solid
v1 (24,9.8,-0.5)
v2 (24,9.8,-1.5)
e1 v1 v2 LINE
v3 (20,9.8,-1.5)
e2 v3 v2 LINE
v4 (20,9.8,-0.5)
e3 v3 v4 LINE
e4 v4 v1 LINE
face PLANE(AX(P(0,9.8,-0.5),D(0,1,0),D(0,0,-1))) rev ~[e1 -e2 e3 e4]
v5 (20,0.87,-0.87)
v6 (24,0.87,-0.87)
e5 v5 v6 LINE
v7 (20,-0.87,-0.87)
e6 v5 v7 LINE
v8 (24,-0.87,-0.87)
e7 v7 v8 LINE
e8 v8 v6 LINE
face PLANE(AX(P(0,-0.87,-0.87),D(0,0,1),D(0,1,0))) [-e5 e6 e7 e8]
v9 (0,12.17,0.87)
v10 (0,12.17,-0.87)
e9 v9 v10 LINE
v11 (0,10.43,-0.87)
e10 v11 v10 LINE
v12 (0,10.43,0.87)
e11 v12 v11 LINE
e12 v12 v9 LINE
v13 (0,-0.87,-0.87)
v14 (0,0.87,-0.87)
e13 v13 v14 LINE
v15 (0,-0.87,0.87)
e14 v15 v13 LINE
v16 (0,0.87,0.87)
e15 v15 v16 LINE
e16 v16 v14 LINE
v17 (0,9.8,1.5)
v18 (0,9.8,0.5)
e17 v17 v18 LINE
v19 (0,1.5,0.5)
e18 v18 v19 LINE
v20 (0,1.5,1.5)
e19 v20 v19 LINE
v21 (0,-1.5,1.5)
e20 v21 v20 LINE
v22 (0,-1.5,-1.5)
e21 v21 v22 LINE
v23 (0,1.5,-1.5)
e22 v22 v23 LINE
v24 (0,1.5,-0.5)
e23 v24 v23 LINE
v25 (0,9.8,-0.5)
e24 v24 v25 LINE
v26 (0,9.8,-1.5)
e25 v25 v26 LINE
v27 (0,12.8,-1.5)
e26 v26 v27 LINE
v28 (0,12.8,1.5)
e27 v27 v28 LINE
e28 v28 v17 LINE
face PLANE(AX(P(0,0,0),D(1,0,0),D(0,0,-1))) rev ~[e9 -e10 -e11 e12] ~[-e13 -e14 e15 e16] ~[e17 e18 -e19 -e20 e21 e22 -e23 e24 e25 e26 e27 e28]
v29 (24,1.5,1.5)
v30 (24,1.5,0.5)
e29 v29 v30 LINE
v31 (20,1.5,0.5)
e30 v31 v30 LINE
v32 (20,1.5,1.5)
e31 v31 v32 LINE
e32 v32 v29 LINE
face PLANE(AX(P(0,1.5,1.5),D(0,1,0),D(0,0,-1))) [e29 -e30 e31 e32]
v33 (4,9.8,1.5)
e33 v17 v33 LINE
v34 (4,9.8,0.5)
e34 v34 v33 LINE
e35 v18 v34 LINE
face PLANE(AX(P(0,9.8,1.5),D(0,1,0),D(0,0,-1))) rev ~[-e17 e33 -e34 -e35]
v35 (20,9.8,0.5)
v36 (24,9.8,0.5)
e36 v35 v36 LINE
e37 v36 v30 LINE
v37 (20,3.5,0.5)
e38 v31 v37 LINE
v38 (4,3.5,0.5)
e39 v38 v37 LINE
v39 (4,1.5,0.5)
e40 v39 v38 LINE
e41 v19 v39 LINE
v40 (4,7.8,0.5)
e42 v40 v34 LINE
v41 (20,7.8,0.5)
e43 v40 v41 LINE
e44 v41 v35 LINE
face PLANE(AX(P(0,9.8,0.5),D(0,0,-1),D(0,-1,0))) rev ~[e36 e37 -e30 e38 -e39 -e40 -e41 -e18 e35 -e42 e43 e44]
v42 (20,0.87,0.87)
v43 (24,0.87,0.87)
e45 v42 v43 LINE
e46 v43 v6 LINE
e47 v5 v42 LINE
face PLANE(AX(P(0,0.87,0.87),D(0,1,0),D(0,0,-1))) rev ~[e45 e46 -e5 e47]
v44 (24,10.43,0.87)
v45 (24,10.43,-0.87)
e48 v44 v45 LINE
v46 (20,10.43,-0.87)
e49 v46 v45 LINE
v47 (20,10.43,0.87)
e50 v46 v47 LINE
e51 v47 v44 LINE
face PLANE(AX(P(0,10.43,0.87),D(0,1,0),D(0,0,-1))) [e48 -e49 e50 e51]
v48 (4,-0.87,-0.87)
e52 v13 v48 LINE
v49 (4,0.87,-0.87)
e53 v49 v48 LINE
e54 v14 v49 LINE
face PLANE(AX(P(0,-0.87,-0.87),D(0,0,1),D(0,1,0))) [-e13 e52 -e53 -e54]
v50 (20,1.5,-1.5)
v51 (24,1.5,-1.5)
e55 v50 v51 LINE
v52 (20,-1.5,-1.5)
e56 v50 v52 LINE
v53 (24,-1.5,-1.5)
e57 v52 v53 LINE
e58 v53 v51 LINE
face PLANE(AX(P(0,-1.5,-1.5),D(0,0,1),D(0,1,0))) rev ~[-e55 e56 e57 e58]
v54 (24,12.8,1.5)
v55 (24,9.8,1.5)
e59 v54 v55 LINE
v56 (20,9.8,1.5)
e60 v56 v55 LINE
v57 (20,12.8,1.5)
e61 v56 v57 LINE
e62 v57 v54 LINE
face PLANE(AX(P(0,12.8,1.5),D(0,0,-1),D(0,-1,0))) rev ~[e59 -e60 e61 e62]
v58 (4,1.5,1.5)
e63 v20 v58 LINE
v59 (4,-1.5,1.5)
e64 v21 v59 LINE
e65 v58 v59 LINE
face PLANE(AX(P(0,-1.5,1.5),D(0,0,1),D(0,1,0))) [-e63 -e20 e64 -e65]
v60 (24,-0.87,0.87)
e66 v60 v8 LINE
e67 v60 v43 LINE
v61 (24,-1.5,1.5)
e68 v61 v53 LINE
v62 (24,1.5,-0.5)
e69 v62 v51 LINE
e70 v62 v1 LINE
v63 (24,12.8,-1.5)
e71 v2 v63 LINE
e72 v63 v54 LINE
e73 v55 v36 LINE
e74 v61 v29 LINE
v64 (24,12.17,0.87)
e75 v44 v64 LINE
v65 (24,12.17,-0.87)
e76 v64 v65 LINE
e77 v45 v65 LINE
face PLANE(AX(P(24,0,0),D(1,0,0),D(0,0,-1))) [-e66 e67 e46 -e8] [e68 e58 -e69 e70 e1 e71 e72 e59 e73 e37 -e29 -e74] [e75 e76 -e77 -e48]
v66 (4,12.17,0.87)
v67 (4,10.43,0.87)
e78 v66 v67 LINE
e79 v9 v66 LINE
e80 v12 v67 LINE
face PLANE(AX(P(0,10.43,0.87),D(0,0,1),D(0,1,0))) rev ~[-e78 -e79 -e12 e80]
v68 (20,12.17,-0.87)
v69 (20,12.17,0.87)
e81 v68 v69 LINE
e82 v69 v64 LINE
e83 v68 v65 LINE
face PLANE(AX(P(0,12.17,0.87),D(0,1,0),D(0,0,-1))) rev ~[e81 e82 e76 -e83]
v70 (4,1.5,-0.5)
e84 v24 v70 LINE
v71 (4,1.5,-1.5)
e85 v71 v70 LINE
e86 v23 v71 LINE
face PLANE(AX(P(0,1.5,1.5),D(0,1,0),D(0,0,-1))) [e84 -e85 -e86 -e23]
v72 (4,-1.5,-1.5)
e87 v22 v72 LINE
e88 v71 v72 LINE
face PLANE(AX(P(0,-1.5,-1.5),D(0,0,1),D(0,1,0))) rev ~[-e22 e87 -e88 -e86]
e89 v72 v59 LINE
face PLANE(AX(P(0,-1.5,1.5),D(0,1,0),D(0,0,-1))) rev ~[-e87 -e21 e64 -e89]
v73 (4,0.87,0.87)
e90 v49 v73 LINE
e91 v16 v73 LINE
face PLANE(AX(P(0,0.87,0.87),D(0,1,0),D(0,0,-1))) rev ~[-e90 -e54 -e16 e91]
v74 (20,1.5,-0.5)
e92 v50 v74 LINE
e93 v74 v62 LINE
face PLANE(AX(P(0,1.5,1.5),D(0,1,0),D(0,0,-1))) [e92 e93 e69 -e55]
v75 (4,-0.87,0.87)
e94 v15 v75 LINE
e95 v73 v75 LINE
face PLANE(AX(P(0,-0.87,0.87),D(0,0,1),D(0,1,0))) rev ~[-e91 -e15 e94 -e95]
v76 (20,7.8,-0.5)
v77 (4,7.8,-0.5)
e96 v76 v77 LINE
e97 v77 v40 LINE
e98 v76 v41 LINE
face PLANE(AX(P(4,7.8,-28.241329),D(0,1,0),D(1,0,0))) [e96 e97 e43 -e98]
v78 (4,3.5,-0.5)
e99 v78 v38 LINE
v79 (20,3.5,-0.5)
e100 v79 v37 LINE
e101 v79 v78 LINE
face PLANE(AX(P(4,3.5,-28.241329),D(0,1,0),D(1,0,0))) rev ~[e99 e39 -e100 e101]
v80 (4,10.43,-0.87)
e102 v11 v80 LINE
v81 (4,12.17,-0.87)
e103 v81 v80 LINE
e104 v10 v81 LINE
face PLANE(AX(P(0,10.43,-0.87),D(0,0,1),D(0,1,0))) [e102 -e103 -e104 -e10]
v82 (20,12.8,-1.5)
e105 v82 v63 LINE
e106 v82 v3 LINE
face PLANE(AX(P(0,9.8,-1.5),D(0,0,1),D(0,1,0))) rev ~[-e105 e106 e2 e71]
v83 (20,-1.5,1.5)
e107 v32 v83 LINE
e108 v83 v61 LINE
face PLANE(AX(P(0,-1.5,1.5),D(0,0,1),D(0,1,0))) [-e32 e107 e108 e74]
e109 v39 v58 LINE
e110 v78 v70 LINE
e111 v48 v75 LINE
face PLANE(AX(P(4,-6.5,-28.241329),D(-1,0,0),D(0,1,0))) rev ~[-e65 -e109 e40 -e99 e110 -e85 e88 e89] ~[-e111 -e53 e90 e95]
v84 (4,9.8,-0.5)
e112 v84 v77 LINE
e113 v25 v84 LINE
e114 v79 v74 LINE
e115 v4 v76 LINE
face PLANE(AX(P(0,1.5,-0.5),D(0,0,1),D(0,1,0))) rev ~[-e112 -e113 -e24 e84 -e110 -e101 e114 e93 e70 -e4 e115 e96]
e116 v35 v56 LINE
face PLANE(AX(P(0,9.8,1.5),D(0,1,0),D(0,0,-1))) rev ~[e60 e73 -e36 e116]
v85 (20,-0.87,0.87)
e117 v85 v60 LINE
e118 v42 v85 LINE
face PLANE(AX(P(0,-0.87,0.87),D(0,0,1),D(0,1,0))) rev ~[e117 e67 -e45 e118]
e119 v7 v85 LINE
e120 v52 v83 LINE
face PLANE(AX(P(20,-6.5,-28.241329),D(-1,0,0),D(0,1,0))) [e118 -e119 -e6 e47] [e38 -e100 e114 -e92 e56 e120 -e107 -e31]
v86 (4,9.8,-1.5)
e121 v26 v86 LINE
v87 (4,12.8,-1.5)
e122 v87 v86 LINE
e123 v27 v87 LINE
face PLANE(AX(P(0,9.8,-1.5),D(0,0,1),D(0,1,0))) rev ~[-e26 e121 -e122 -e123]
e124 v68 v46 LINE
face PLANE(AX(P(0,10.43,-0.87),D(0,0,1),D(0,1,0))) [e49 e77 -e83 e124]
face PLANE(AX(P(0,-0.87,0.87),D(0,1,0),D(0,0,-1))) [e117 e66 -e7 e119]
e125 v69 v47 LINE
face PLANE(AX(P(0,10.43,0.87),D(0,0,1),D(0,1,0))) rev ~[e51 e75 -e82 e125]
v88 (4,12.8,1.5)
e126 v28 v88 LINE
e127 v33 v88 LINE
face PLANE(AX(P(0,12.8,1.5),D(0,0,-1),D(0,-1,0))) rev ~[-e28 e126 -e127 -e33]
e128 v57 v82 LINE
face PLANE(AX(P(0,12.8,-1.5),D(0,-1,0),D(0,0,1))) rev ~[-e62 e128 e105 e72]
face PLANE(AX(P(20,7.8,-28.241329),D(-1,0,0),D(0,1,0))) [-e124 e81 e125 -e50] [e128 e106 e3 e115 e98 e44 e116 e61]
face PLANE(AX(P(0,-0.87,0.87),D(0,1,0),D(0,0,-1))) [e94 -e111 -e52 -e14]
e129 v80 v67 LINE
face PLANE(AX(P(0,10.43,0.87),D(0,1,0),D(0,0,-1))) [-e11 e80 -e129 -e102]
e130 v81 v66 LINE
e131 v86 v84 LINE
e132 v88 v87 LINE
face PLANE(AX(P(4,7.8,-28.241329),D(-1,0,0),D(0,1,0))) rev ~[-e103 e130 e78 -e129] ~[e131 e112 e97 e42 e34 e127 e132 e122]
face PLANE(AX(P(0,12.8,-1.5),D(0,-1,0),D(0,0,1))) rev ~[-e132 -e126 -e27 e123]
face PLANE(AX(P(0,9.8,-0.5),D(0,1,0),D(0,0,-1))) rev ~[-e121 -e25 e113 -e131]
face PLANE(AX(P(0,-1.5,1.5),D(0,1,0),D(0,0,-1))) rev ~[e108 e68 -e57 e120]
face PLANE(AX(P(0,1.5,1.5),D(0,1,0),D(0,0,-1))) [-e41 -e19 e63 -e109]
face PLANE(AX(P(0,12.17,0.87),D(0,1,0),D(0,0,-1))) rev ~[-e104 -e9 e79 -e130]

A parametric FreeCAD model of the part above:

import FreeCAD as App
import Part
import Sketcher
Q = App.Units.Quantity

doc = App.newDocument("Part")
body = doc.addObject("PartDesign::Body", "Body")

# Sketch on YZ plane
sketch1 = doc.addObject("Sketcher::SketchObject", "Sketch")
body.addObject(sketch1)
sketch1.AttachmentSupport = (doc.YZ_Plane, [""])
sketch1.MapMode = "FlatFace"
sketch1.addGeometry([
    Part.LineSegment(App.Vector(1.5, -0.5, 0), App.Vector(9.8, -0.5, 0)),  # 0
    Part.LineSegment(App.Vector(9.8, -0.5, 0), App.Vector(9.8, -1.5, 0)),  # 1
    Part.LineSegment(App.Vector(9.8, -1.5, 0), App.Vector(12.8, -1.5, 0)),  # 2
    Part.LineSegment(App.Vector(12.8, -1.5, 0), App.Vector(12.8, 1.5, 0)),  # 3
    Part.LineSegment(App.Vector(12.8, 1.5, 0), App.Vector(9.8, 1.5, 0)),  # 4
    Part.LineSegment(App.Vector(9.8, 1.5, 0), App.Vector(9.8, 0.5, 0)),  # 5
    Part.LineSegment(App.Vector(9.8, 0.5, 0), App.Vector(1.5, 0.5, 0)),  # 6
    Part.LineSegment(App.Vector(1.5, 0.5, 0), App.Vector(1.5, 1.5, 0)),  # 7
    Part.LineSegment(App.Vector(1.5, 1.5, 0), App.Vector(-1.5, 1.5, 0)),  # 8
    Part.LineSegment(App.Vector(-1.5, 1.5, 0), App.Vector(-1.5, -1.5, 0)),  # 9
    Part.LineSegment(App.Vector(-1.5, -1.5, 0), App.Vector(1.5, -1.5, 0)),  # 10
    Part.LineSegment(App.Vector(1.5, -1.5, 0), App.Vector(1.5, -0.5, 0)),  # 11
    Part.LineSegment(App.Vector(10.4, -0.9, 0), App.Vector(10.4, 0.9, 0)),  # 12
    Part.LineSegment(App.Vector(10.4, 0.9, 0), App.Vector(12.2, 0.9, 0)),  # 13
    Part.LineSegment(App.Vector(12.2, 0.9, 0), App.Vector(12.2, -0.9, 0)),  # 14
    Part.LineSegment(App.Vector(12.2, -0.9, 0), App.Vector(10.4, -0.9, 0)),  # 15
    Part.LineSegment(App.Vector(-0.9, 0.9, 0), App.Vector(0.9, 0.9, 0)),  # 16
    Part.LineSegment(App.Vector(0.9, 0.9, 0), App.Vector(0.9, -0.9, 0)),  # 17
    Part.LineSegment(App.Vector(0.9, -0.9, 0), App.Vector(-0.9, -0.9, 0)),  # 18
    Part.LineSegment(App.Vector(-0.9, -0.9, 0), App.Vector(-0.9, 0.9, 0)),  # 19
], False)
sketch1.addConstraint([
    Sketcher.Constraint("Coincident", 0, 2, 1, 1),
    Sketcher.Constraint("Coincident", 1, 2, 2, 1),
    Sketcher.Constraint("Coincident", 2, 2, 3, 1),
    Sketcher.Constraint("Coincident", 3, 2, 4, 1),
    Sketcher.Constraint("Coincident", 4, 2, 5, 1),
    Sketcher.Constraint("Coincident", 5, 2, 6, 1),
    Sketcher.Constraint("Coincident", 6, 2, 7, 1),
    Sketcher.Constraint("Coincident", 7, 2, 8, 1),
    Sketcher.Constraint("Coincident", 8, 2, 9, 1),
    Sketcher.Constraint("Coincident", 9, 2, 10, 1),
    Sketcher.Constraint("Coincident", 10, 2, 11, 1),
    Sketcher.Constraint("Coincident", 11, 2, 0, 1),
    Sketcher.Constraint("Coincident", 12, 2, 13, 1),
    Sketcher.Constraint("Coincident", 13, 2, 14, 1),
    Sketcher.Constraint("Coincident", 14, 2, 15, 1),
    Sketcher.Constraint("Coincident", 15, 2, 12, 1),
    Sketcher.Constraint("Coincident", 16, 2, 17, 1),
    Sketcher.Constraint("Coincident", 17, 2, 18, 1),
    Sketcher.Constraint("Coincident", 18, 2, 19, 1),
    Sketcher.Constraint("Coincident", 19, 2, 16, 1),
    Sketcher.Constraint("Horizontal", 0),
    Sketcher.Constraint("Vertical", 1),
    Sketcher.Constraint("Horizontal", 2),
    Sketcher.Constraint("Vertical", 3),
    Sketcher.Constraint("Horizontal", 4),
    Sketcher.Constraint("Vertical", 5),
    Sketcher.Constraint("Horizontal", 6),
    Sketcher.Constraint("Vertical", 7),
    Sketcher.Constraint("Horizontal", 8),
    Sketcher.Constraint("Vertical", 9),
    Sketcher.Constraint("Horizontal", 10),
    Sketcher.Constraint("Vertical", 11),
    Sketcher.Constraint("Vertical", 12),
    Sketcher.Constraint("Horizontal", 13),
    Sketcher.Constraint("Vertical", 14),
    Sketcher.Constraint("Horizontal", 15),
    Sketcher.Constraint("Horizontal", 16),
    Sketcher.Constraint("Vertical", 17),
    Sketcher.Constraint("Horizontal", 18),
    Sketcher.Constraint("Vertical", 19),
    Sketcher.Constraint("Symmetric", 7, 2, 9, 2, -1, 1),
    Sketcher.Constraint("Symmetric", 16, 2, 18, 2, -1, 1),
    Sketcher.Constraint("Symmetric", 1, 2, 4, 2, -1),
    Sketcher.Constraint("Symmetric", 6, 2, 11, 2, -1),
    Sketcher.Constraint("Horizontal", 4, 2, 7, 2),
    Sketcher.Constraint("Horizontal", 13, 2, 16, 2),
    Sketcher.Constraint("Horizontal", 15, 2, 17, 2),
    Sketcher.Constraint("Equal", 4, 8),
    Sketcher.Constraint("Equal", 15, 16),
    Sketcher.Constraint("Equal", 10, 3),
    Sketcher.Constraint("Equal", 18, 12),
    Sketcher.Constraint("DistanceX", 2, 1, 2, 2, Q("3 mm")),
    Sketcher.Constraint("DistanceY", 1, 2, 1, 1, Q("1 mm")),
    Sketcher.Constraint("DistanceX", 0, 1, 0, 2, Q("8.3 mm")),
    Sketcher.Constraint("DistanceX", 13, 1, 13, 2, Q("1.74 mm")),
    Sketcher.Constraint("DistanceX", -1, 1, 12, 2, Q("10.43 mm")),
])
pad1 = doc.addObject("PartDesign::Pad", "Pad")
body.addObject(pad1)
pad1.Profile = sketch1
pad1.Length = 24

# Sketch on XY plane
sketch2 = doc.addObject("Sketcher::SketchObject", "Sketch001")
body.addObject(sketch2)
sketch2.AttachmentSupport = (doc.XY_Plane, [""])
sketch2.MapMode = "FlatFace"
sketch2.addGeometry([
    Part.LineSegment(App.Vector(4, 18, 0), App.Vector(4, 8, 0)),  # 0
    Part.LineSegment(App.Vector(4, 8, 0), App.Vector(20, 8, 0)),  # 1
    Part.LineSegment(App.Vector(20, 8, 0), App.Vector(20, 18, 0)),  # 2
    Part.LineSegment(App.Vector(20, 18, 0), App.Vector(4, 18, 0)),  # 3
    Part.LineSegment(App.Vector(4, 4, 0), App.Vector(4, -6, 0)),  # 4
    Part.LineSegment(App.Vector(4, -6, 0), App.Vector(20, -6, 0)),  # 5
    Part.LineSegment(App.Vector(20, -6, 0), App.Vector(20, 4, 0)),  # 6
    Part.LineSegment(App.Vector(20, 4, 0), App.Vector(4, 4, 0)),  # 7
], False)
sketch2.addConstraint([
    Sketcher.Constraint("Coincident", 0, 2, 1, 1),
    Sketcher.Constraint("Coincident", 1, 2, 2, 1),
    Sketcher.Constraint("Coincident", 2, 2, 3, 1),
    Sketcher.Constraint("Coincident", 3, 2, 0, 1),
    Sketcher.Constraint("Coincident", 4, 2, 5, 1),
    Sketcher.Constraint("Coincident", 5, 2, 6, 1),
    Sketcher.Constraint("Coincident", 6, 2, 7, 1),
    Sketcher.Constraint("Coincident", 7, 2, 4, 1),
    Sketcher.Constraint("Vertical", 0),
    Sketcher.Constraint("Horizontal", 1),
    Sketcher.Constraint("Vertical", 2),
    Sketcher.Constraint("Horizontal", 3),
    Sketcher.Constraint("Vertical", 4),
    Sketcher.Constraint("Horizontal", 5),
    Sketcher.Constraint("Vertical", 6),
    Sketcher.Constraint("Horizontal", 7),
    Sketcher.Constraint("Vertical", 3, 2, 4, 2),
    Sketcher.Constraint("Vertical", 2, 2, 5, 2),
    Sketcher.Constraint("Equal", 2, 4),
    Sketcher.Constraint("DistanceX", 1, 1, 1, 2, Q("16 mm")),
    Sketcher.Constraint("DistanceY", 0, 2, 0, 1, Q("10 mm")),
    Sketcher.Constraint("DistanceX", -1, 1, 0, 2, Q("4 mm")),
    Sketcher.Constraint("DistanceY", -1, 1, 0, 2, Q("7.8 mm")),
    Sketcher.Constraint("DistanceY", 4, 2, -1, 1, Q("6.5 mm")),
])
pocket1 = doc.addObject("PartDesign::Pocket", "Pocket")
body.addObject(pocket1)
pocket1.Profile = sketch2
pocket1.Type = "ThroughAll"
pocket1.Midplane = True

doc.recompute()
